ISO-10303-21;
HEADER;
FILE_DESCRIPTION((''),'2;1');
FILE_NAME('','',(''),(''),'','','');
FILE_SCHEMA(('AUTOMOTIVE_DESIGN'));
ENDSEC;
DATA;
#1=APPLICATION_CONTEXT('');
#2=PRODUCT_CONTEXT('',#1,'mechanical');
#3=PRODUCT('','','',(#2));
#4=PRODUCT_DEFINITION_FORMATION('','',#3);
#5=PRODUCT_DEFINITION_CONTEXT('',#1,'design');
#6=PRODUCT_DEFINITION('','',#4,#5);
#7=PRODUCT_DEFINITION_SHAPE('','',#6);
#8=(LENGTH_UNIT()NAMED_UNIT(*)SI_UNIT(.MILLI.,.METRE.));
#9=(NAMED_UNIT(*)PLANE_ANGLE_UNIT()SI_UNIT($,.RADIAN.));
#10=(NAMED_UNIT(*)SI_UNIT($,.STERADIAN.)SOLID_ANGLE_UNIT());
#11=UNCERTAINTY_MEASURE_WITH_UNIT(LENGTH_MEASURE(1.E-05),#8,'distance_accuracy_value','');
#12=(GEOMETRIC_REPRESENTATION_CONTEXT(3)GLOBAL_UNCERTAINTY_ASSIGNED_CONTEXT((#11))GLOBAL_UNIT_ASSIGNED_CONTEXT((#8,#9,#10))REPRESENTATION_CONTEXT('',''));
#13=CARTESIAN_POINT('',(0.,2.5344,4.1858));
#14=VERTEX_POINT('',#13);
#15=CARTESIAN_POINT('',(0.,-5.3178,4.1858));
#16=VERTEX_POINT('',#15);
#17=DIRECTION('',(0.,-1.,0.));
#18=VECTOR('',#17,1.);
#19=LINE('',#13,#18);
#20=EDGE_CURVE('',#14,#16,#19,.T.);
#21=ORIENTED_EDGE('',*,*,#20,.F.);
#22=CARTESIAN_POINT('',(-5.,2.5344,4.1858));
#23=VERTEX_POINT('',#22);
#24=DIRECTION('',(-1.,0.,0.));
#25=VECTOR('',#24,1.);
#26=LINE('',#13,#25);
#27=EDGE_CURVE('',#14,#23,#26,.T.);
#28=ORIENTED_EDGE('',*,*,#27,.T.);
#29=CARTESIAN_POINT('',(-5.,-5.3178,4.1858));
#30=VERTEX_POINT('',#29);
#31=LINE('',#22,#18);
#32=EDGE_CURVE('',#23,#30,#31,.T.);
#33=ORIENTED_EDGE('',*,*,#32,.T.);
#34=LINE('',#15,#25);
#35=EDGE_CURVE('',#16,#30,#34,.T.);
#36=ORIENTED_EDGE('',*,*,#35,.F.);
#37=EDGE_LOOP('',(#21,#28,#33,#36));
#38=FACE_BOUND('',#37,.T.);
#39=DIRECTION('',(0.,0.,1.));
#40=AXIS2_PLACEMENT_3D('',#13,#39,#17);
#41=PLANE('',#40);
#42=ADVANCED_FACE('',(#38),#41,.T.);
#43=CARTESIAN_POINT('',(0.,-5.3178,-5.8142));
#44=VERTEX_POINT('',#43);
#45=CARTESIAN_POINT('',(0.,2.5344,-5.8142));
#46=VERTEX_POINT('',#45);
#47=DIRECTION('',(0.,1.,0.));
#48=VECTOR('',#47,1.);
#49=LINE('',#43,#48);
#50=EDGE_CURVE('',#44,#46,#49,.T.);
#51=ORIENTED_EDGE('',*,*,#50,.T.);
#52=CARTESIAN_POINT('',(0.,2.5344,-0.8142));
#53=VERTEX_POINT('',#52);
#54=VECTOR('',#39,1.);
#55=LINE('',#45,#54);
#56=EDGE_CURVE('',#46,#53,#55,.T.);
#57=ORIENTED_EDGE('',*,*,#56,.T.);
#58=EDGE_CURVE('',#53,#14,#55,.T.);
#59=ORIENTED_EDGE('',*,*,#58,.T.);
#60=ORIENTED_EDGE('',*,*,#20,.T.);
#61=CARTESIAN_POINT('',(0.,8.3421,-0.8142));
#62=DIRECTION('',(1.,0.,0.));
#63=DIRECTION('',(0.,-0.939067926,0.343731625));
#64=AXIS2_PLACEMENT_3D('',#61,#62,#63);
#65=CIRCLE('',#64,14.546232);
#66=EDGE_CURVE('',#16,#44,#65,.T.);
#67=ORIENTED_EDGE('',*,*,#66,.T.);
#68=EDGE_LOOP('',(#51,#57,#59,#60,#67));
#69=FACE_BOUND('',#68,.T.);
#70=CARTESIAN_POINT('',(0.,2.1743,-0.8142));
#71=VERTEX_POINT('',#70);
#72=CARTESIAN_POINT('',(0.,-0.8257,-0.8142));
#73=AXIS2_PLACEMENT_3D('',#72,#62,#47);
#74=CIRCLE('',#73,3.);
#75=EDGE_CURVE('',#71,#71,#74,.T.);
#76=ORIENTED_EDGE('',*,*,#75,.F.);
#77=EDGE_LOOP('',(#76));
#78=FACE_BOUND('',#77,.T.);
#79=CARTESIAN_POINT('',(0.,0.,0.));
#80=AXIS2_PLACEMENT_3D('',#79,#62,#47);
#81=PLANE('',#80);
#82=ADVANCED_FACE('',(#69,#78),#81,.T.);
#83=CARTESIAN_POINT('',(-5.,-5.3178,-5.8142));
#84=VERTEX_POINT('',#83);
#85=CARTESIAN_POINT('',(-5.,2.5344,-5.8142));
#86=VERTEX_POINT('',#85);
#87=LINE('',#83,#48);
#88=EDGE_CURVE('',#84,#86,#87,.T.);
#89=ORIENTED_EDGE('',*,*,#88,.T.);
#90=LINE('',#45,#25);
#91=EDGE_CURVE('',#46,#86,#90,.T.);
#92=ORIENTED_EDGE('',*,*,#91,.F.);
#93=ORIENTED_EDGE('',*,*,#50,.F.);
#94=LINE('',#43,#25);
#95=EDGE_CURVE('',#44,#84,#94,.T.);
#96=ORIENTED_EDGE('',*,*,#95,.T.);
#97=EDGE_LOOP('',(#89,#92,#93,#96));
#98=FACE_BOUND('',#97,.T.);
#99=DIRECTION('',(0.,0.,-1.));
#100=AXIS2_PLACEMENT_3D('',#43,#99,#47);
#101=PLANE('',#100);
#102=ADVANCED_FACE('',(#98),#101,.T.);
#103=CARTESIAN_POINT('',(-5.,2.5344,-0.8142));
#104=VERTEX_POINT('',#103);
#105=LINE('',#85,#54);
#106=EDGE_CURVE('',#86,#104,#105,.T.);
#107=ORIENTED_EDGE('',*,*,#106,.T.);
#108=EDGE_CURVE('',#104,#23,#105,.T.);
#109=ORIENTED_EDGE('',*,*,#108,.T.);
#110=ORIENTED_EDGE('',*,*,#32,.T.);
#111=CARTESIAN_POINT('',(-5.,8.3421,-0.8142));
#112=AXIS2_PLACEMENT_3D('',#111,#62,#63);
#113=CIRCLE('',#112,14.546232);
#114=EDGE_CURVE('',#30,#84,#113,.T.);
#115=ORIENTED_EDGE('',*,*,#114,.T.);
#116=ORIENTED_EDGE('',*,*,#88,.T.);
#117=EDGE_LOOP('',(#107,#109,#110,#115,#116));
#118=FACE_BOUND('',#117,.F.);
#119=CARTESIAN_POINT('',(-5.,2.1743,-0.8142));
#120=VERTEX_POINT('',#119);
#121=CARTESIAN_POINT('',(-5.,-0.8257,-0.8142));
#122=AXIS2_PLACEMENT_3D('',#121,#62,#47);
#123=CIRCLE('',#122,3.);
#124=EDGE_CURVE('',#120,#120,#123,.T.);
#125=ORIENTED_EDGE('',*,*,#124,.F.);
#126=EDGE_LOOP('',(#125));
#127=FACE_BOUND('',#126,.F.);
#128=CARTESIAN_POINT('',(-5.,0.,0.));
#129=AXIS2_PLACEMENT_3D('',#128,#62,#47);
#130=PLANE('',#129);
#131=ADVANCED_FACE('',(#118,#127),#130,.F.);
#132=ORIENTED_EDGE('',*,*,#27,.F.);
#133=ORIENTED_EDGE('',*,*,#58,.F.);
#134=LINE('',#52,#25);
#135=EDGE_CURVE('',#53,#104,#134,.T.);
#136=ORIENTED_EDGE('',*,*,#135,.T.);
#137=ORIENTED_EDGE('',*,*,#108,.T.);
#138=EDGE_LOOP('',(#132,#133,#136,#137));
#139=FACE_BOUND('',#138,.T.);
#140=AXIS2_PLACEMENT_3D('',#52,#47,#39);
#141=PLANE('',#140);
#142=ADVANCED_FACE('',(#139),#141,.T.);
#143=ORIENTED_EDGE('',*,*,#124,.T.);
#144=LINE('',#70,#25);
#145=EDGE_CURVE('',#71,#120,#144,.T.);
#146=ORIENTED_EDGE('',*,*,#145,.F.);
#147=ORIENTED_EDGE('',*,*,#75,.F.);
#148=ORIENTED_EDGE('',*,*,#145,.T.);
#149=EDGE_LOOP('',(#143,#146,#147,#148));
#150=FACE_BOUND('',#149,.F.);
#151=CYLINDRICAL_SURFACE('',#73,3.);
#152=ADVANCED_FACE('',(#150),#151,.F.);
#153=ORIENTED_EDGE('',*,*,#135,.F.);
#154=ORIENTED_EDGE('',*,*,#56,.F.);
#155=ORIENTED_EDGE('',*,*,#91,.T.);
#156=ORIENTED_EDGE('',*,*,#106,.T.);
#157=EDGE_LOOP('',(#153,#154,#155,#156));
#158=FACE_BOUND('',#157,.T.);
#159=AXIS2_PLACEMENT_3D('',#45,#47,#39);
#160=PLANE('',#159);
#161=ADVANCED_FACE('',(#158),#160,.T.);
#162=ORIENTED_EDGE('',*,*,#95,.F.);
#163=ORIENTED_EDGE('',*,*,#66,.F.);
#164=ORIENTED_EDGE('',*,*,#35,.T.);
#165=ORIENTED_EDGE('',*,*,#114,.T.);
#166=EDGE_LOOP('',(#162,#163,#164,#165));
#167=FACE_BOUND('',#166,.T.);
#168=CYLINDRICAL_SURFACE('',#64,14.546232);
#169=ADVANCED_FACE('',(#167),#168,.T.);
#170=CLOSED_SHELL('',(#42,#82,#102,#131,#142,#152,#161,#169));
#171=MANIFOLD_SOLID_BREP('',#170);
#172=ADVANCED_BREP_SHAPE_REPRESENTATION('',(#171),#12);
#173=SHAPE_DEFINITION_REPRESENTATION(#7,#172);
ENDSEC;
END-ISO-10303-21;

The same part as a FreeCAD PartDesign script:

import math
import FreeCAD as App
import Part
import Sketcher

V = App.Vector

doc = App.newDocument("Part")
body = doc.addObject("PartDesign::Body", "Body")

# Sketch on YZ plane
sketch1 = body.newObject("Sketcher::SketchObject", "Sketch")
sketch1.AttachmentSupport = (doc.getObject("YZ_Plane"), [""])
sketch1.MapMode = "FlatFace"
sketch1.addGeometry([
    Part.LineSegment(V(2.5344, -5.8142, 0), V(2.5344, 4.1858, 0)),  # 0
    Part.LineSegment(V(2.5344, 4.1858, 0), V(-5.3178, 4.1858, 0)),  # 1
    Part.ArcOfCircle(Part.Circle(V(8.3421, -0.8142, 0), V(0, 0, 1), 14.546232), math.radians(159.895611), math.radians(200.104389)),  # 2
    Part.LineSegment(V(-5.3178, -5.8142, 0), V(2.5344, -5.8142, 0)),  # 3
    Part.Circle(V(-0.8257, -0.8142, 0), V(0, 0, 1), 3),  # 4
], False)
sketch1.addConstraint([
    Sketcher.Constraint("Coincident", 0, 2, 1, 1),
    Sketcher.Constraint("Coincident", 1, 2, 2, 1),
    Sketcher.Constraint("Coincident", 2, 2, 3, 1),
    Sketcher.Constraint("Coincident", 3, 2, 0, 1),
    Sketcher.Constraint("Vertical", 0),
    Sketcher.Constraint("Horizontal", 1),
    Sketcher.Constraint("Horizontal", 3),
    Sketcher.Constraint("Horizontal", 2, 3, 4, 3),
    Sketcher.Constraint("Vertical", 1, 2, 2, 2),
    Sketcher.Constraint("Diameter", 4, 6.0),
    Sketcher.Constraint("DistanceY", 0, 1, 0, 2, 10.0),
    Sketcher.Constraint("Radius", 2, 14.5462),
    Sketcher.Constraint("DistanceX", 4, 3, 0, 2, 3.36),
    Sketcher.Constraint("DistanceX", 1, 2, 1, 1, 7.8522),
    Sketcher.Constraint("DistanceX", -1, 1, 2, 3, 8.342),
    Sketcher.Constraint("DistanceY", 2, 3, -1, 1, 0.8142),
])
pad1 = body.newObject("PartDesign::Pad", "Pad")
pad1.Profile = sketch1
pad1.Length = 5
pad1.Reversed = True

doc.recompute()
